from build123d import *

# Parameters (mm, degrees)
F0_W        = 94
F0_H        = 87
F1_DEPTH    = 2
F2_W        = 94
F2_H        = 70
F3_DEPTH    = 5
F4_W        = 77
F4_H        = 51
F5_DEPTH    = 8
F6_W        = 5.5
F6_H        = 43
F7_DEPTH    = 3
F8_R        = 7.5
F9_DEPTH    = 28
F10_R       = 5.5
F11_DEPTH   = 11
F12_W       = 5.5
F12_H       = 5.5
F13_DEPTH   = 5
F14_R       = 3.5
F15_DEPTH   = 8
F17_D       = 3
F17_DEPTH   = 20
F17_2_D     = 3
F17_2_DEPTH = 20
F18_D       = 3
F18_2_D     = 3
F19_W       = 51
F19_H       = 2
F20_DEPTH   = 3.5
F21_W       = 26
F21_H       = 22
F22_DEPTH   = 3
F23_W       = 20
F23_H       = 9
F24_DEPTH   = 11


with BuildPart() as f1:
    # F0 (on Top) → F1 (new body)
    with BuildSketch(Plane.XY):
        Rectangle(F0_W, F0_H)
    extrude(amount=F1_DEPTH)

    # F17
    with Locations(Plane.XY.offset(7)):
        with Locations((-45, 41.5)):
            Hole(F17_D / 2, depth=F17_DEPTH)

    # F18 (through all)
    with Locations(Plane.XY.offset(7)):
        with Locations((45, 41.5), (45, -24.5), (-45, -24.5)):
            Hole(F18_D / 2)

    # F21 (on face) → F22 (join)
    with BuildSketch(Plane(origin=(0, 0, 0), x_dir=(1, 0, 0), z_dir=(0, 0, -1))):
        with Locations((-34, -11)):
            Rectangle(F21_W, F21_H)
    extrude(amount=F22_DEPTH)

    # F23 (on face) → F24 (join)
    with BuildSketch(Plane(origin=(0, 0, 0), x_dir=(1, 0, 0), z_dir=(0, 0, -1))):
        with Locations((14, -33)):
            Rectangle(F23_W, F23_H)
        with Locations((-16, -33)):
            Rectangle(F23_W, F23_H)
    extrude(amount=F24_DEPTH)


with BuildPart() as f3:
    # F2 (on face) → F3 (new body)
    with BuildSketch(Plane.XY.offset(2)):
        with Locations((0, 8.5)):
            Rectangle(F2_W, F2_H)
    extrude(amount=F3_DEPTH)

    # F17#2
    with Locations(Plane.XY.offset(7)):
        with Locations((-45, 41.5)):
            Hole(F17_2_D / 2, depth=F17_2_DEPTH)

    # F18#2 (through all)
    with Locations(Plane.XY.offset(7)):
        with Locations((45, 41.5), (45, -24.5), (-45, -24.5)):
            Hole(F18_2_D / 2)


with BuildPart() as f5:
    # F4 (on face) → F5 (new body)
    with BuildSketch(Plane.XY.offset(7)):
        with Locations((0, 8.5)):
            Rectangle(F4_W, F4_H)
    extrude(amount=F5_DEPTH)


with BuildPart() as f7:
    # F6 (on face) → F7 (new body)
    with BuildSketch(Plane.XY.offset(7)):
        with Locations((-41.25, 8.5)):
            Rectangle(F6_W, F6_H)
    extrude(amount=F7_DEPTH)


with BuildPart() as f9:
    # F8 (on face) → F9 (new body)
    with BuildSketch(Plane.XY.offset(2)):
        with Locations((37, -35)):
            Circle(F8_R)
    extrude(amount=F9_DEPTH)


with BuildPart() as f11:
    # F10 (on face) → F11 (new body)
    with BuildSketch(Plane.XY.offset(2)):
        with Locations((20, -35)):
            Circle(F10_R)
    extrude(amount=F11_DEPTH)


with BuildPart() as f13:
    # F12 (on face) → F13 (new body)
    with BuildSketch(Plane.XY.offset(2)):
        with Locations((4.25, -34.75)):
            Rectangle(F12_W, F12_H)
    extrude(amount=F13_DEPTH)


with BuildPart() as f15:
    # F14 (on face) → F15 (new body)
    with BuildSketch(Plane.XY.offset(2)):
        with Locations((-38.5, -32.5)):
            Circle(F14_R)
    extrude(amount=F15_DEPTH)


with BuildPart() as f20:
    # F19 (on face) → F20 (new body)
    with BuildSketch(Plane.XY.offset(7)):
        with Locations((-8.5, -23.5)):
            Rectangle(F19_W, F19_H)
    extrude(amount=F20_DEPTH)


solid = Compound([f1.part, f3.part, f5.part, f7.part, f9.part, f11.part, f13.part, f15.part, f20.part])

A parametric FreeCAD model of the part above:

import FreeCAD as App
import Part
import Sketcher

V = App.Vector


def add_polygon(sketch, points):
    """Adds a closed chain of lines whose ends are joined by coincident constraints."""
    first, n = sketch.GeometryCount, len(points)
    for a, b in zip(points, points[1:] + points[:1]):
        sketch.addGeometry(Part.LineSegment(App.Vector(*a, 0), App.Vector(*b, 0)), False)
    for i in range(n):
        sketch.addConstraint(Sketcher.Constraint("Coincident", first + i, 2, first + (i + 1) % n, 1))

doc = App.newDocument("Part")
body = doc.addObject("PartDesign::Body", "Body")

# Sketch on XY plane
sketch1 = body.newObject("Sketcher::SketchObject", "Sketch")
sketch1.AttachmentSupport = (doc.getObject("XY_Plane"), [""])
sketch1.MapMode = "FlatFace"
add_polygon(sketch1, [(-47, 44), (-47, -44), (47, -44), (47, 44)])  # lines 0-3
sketch1.addConstraint(Sketcher.Constraint("Vertical", 0))
sketch1.addConstraint(Sketcher.Constraint("Horizontal", 1))
sketch1.addConstraint(Sketcher.Constraint("Vertical", 2))
sketch1.addConstraint(Sketcher.Constraint("Horizontal", 3))
sketch1.addConstraint(Sketcher.Constraint("Symmetric", 0, 2, 2, 2, -1, 1))
sketch1.addConstraint(Sketcher.Constraint("DistanceX", 1, 1, 1, 2, 94.0))
sketch1.addConstraint(Sketcher.Constraint("DistanceY", 0, 2, 0, 1, 87.0))
pad1 = body.newObject("PartDesign::Pad", "Pad")
pad1.Profile = sketch1
pad1.Length = 2

# Sketch on XY plane
sketch2 = body.newObject("Sketcher::SketchObject", "Sketch001")
sketch2.AttachmentSupport = (doc.getObject("XY_Plane"), [""])
sketch2.MapMode = "FlatFace"
sketch2.AttachmentOffset = App.Placement(V(0, 0, 7), App.Rotation())
sketch2.addGeometry(Part.Circle(V(-45, 41.5, 0), V(0, 0, 1), 1.5), False)
sketch2.addConstraint(Sketcher.Constraint("Diameter", 0, 3.0))
sketch2.addConstraint(Sketcher.Constraint("DistanceX", 0, 3, -1, 1, 45.0))
sketch2.addConstraint(Sketcher.Constraint("DistanceY", -1, 1, 0, 3, 41.5))
doc.recompute()
hole = body.newObject("PartDesign::Hole", "Hole")
hole.Profile = sketch2
hole.ThreadType = "None"
hole.Diameter = 3
hole.DepthType = "Dimension"
hole.Depth = 20
hole.DrillPoint = "Flat"

# Sketch on XY plane
sketch3 = body.newObject("Sketcher::SketchObject", "Sketch002")
sketch3.AttachmentSupport = (doc.getObject("XY_Plane"), [""])
sketch3.MapMode = "FlatFace"
sketch3.AttachmentOffset = App.Placement(V(0, 0, 7), App.Rotation())
sketch3.addGeometry(Part.Circle(V(45, 41.5, 0), V(0, 0, 1), 1.5), False)
sketch3.addGeometry(Part.Circle(V(45, -24.5, 0), V(0, 0, 1), 1.5), False)
sketch3.addGeometry(Part.Circle(V(-45, -24.5, 0), V(0, 0, 1), 1.5), False)
sketch3.addConstraint(Sketcher.Constraint("Equal", 0, 1))
sketch3.addConstraint(Sketcher.Constraint("Equal", 1, 2))
sketch3.addConstraint(Sketcher.Constraint("Symmetric", 1, 3, 2, 3, -2))
sketch3.addConstraint(Sketcher.Constraint("Vertical", 0, 3, 1, 3))
sketch3.addConstraint(Sketcher.Constraint("Diameter", 0, 3.0))
sketch3.addConstraint(Sketcher.Constraint("DistanceX", -1, 1, 0, 3, 45.0))
sketch3.addConstraint(Sketcher.Constraint("DistanceY", 1, 3, 0, 3, 66.0))
sketch3.addConstraint(Sketcher.Constraint("DistanceY", -1, 1, 0, 3, 41.5))
doc.recompute()
hole2 = body.newObject("PartDesign::Hole", "Hole001")
hole2.Profile = sketch3
hole2.ThreadType = "None"
hole2.Diameter = 3
hole2.DepthType = "ThroughAll"

# Sketch on XY plane
sketch4 = body.newObject("Sketcher::SketchObject", "Sketch003")
sketch4.AttachmentSupport = (doc.getObject("XY_Plane"), [""])
sketch4.MapMode = "FlatFace"
add_polygon(sketch4, [(-47, 0), (-47, 22), (-21, 22), (-21, 0)])  # lines 0-3
sketch4.addConstraint(Sketcher.Constraint("Vertical", 0))
sketch4.addConstraint(Sketcher.Constraint("Horizontal", 1))
sketch4.addConstraint(Sketcher.Constraint("Vertical", 2))
sketch4.addConstraint(Sketcher.Constraint("Horizontal", 3))
sketch4.addConstraint(Sketcher.Constraint("PointOnObject", 2, 2, -1))
sketch4.addConstraint(Sketcher.Constraint("DistanceX", 1, 1, 1, 2, 26.0))
sketch4.addConstraint(Sketcher.Constraint("DistanceY", 0, 1, 0, 2, 22.0))
sketch4.addConstraint(Sketcher.Constraint("DistanceX", 0, 2, -1, 1, 47.0))
pad2 = body.newObject("PartDesign::Pad", "Pad001")
pad2.Profile = sketch4
pad2.Length = 3
pad2.Reversed = True

# Sketch on XY plane
sketch5 = body.newObject("Sketcher::SketchObject", "Sketch004")
sketch5.AttachmentSupport = (doc.getObject("XY_Plane"), [""])
sketch5.MapMode = "FlatFace"
add_polygon(sketch5, [(4, 28), (4, 38), (24, 38), (24, 28)])  # lines 0-3
add_polygon(sketch5, [(-26, 28), (-26, 38), (-6, 38), (-6, 28)])  # lines 4-7
sketch5.addConstraint(Sketcher.Constraint("Vertical", 0))
sketch5.addConstraint(Sketcher.Constraint("Horizontal", 1))
sketch5.addConstraint(Sketcher.Constraint("Vertical", 2))
sketch5.addConstraint(Sketcher.Constraint("Horizontal", 3))
sketch5.addConstraint(Sketcher.Constraint("Vertical", 4))
sketch5.addConstraint(Sketcher.Constraint("Horizontal", 5))
sketch5.addConstraint(Sketcher.Constraint("Vertical", 6))
sketch5.addConstraint(Sketcher.Constraint("Horizontal", 7))
sketch5.addConstraint(Sketcher.Constraint("Horizontal", 1, 2, 4, 2))
sketch5.addConstraint(Sketcher.Constraint("Horizontal", 3, 2, 6, 2))
sketch5.addConstraint(Sketcher.Constraint("Equal", 3, 5))
sketch5.addConstraint(Sketcher.Constraint("DistanceX", 1, 1, 1, 2, 20.0))
sketch5.addConstraint(Sketcher.Constraint("DistanceY", 0, 1, 0, 2, 9.0))
sketch5.addConstraint(Sketcher.Constraint("DistanceX", -1, 1, 0, 2, 4.0))
sketch5.addConstraint(Sketcher.Constraint("DistanceX", 4, 2, -1, 1, 26.0))
sketch5.addConstraint(Sketcher.Constraint("DistanceY", -1, 1, 0, 2, 37.5))
pad3 = body.newObject("PartDesign::Pad", "Pad002")
pad3.Profile = sketch5
pad3.Length = 11
pad3.Reversed = True
body2 = doc.addObject("PartDesign::Body", "Body001")

# Sketch on XY plane
sketch6 = body2.newObject("Sketcher::SketchObject", "Sketch005")
sketch6.AttachmentSupport = (doc.getObject("XY_Plane001"), [""])
sketch6.MapMode = "FlatFace"
sketch6.AttachmentOffset = App.Placement(V(0, 0, 2), App.Rotation())
add_polygon(sketch6, [(-47, 44), (-47, -26), (47, -26), (47, 44)])  # lines 0-3
sketch6.addConstraint(Sketcher.Constraint("Vertical", 0))
sketch6.addConstraint(Sketcher.Constraint("Horizontal", 1))
sketch6.addConstraint(Sketcher.Constraint("Vertical", 2))
sketch6.addConstraint(Sketcher.Constraint("Horizontal", 3))
sketch6.addConstraint(Sketcher.Constraint("DistanceX", 1, 1, 1, 2, 94.0))
sketch6.addConstraint(Sketcher.Constraint("DistanceY", 0, 2, 0, 1, 70.0))
sketch6.addConstraint(Sketcher.Constraint("DistanceX", 0, 2, -1, 1, 47.0))
sketch6.addConstraint(Sketcher.Constraint("DistanceY", 0, 2, -1, 1, 26.5))
pad4 = body2.newObject("PartDesign::Pad", "Pad003")
pad4.Profile = sketch6
pad4.Length = 5

# Sketch on XY plane
sketch7 = body2.newObject("Sketcher::SketchObject", "Sketch006")
sketch7.AttachmentSupport = (doc.getObject("XY_Plane001"), [""])
sketch7.MapMode = "FlatFace"
sketch7.AttachmentOffset = App.Placement(V(0, 0, 7), App.Rotation())
sketch7.addGeometry(Part.Circle(V(-45, 41.5, 0), V(0, 0, 1), 1.5), False)
sketch7.addConstraint(Sketcher.Constraint("Diameter", 0, 3.0))
sketch7.addConstraint(Sketcher.Constraint("DistanceX", 0, 3, -1, 1, 45.0))
sketch7.addConstraint(Sketcher.Constraint("DistanceY", -1, 1, 0, 3, 41.5))
doc.recompute()
hole3 = body2.newObject("PartDesign::Hole", "Hole002")
hole3.Profile = sketch7
hole3.ThreadType = "None"
hole3.Diameter = 3
hole3.DepthType = "Dimension"
hole3.Depth = 20
hole3.DrillPoint = "Flat"

# Sketch on XY plane
sketch8 = body2.newObject("Sketcher::SketchObject", "Sketch007")
sketch8.AttachmentSupport = (doc.getObject("XY_Plane001"), [""])
sketch8.MapMode = "FlatFace"
sketch8.AttachmentOffset = App.Placement(V(0, 0, 7), App.Rotation())
sketch8.addGeometry(Part.Circle(V(45, 41.5, 0), V(0, 0, 1), 1.5), False)
sketch8.addGeometry(Part.Circle(V(45, -24.5, 0), V(0, 0, 1), 1.5), False)
sketch8.addGeometry(Part.Circle(V(-45, -24.5, 0), V(0, 0, 1), 1.5), False)
sketch8.addConstraint(Sketcher.Constraint("Equal", 0, 1))
sketch8.addConstraint(Sketcher.Constraint("Equal", 1, 2))
sketch8.addConstraint(Sketcher.Constraint("Symmetric", 1, 3, 2, 3, -2))
sketch8.addConstraint(Sketcher.Constraint("Vertical", 0, 3, 1, 3))
sketch8.addConstraint(Sketcher.Constraint("Diameter", 0, 3.0))
sketch8.addConstraint(Sketcher.Constraint("DistanceX", -1, 1, 0, 3, 45.0))
sketch8.addConstraint(Sketcher.Constraint("DistanceY", 1, 3, 0, 3, 66.0))
sketch8.addConstraint(Sketcher.Constraint("DistanceY", -1, 1, 0, 3, 41.5))
doc.recompute()
hole4 = body2.newObject("PartDesign::Hole", "Hole003")
hole4.Profile = sketch8
hole4.ThreadType = "None"
hole4.Diameter = 3
hole4.DepthType = "ThroughAll"
body3 = doc.addObject("PartDesign::Body", "Body002")

# Sketch on XY plane
sketch9 = body3.newObject("Sketcher::SketchObject", "Sketch008")
sketch9.AttachmentSupport = (doc.getObject("XY_Plane002"), [""])
sketch9.MapMode = "FlatFace"
sketch9.AttachmentOffset = App.Placement(V(0, 0, 7), App.Rotation())
add_polygon(sketch9, [(-38, 34), (-38, -17), (38, -17), (38, 34)])  # lines 0-3
sketch9.addConstraint(Sketcher.Constraint("Vertical", 0))
sketch9.addConstraint(Sketcher.Constraint("Horizontal", 1))
sketch9.addConstraint(Sketcher.Constraint("Vertical", 2))
sketch9.addConstraint(Sketcher.Constraint("Horizontal", 3))
sketch9.addConstraint(Sketcher.Constraint("DistanceX", 1, 1, 1, 2, 77.0))
sketch9.addConstraint(Sketcher.Constraint("DistanceY", 0, 2, 0, 1, 51.0))
sketch9.addConstraint(Sketcher.Constraint("DistanceY", 0, 2, -1, 1, 17.0))
sketch9.addConstraint(Sketcher.Constraint("DistanceX", 0, 2, -1, 1, 38.5))
pad5 = body3.newObject("PartDesign::Pad", "Pad004")
pad5.Profile = sketch9
pad5.Length = 8
body4 = doc.addObject("PartDesign::Body", "Body003")

# Sketch on XY plane
sketch10 = body4.newObject("Sketcher::SketchObject", "Sketch009")
sketch10.AttachmentSupport = (doc.getObject("XY_Plane003"), [""])
sketch10.MapMode = "FlatFace"
sketch10.AttachmentOffset = App.Placement(V(0, 0, 7), App.Rotation())
add_polygon(sketch10, [(-44, 30), (-44, -13), (-38, -13), (-38, 30)])  # lines 0-3
sketch10.addConstraint(Sketcher.Constraint("Vertical", 0))
sketch10.addConstraint(Sketcher.Constraint("Horizontal", 1))
sketch10.addConstraint(Sketcher.Constraint("Vertical", 2))
sketch10.addConstraint(Sketcher.Constraint("Horizontal", 3))
sketch10.addConstraint(Sketcher.Constraint("DistanceY", 0, 2, 0, 1, 43.0))
sketch10.addConstraint(Sketcher.Constraint("DistanceX", 1, 1, 1, 2, 5.5))
sketch10.addConstraint(Sketcher.Constraint("DistanceX", 0, 2, -1, 1, 44.0))
sketch10.addConstraint(Sketcher.Constraint("DistanceY", 0, 2, -1, 1, 13.0))
pad6 = body4.newObject("PartDesign::Pad", "Pad005")
pad6.Profile = sketch10
pad6.Length = 3
body5 = doc.addObject("PartDesign::Body", "Body004")

# Sketch on XY plane
sketch11 = body5.newObject("Sketcher::SketchObject", "Sketch010")
sketch11.AttachmentSupport = (doc.getObject("XY_Plane004"), [""])
sketch11.MapMode = "FlatFace"
sketch11.AttachmentOffset = App.Placement(V(0, 0, 2), App.Rotation())
sketch11.addGeometry(Part.Circle(V(37, -35, 0), V(0, 0, 1), 8), False)
sketch11.addConstraint(Sketcher.Constraint("Diameter", 0, 15.0))
sketch11.addConstraint(Sketcher.Constraint("DistanceX", -1, 1, 0, 3, 37.0))
sketch11.addConstraint(Sketcher.Constraint("DistanceY", 0, 3, -1, 1, 35.0))
pad7 = body5.newObject("PartDesign::Pad", "Pad006")
pad7.Profile = sketch11
pad7.Length = 28
body6 = doc.addObject("PartDesign::Body", "Body005")

# Sketch on XY plane
sketch12 = body6.newObject("Sketcher::SketchObject", "Sketch011")
sketch12.AttachmentSupport = (doc.getObject("XY_Plane005"), [""])
sketch12.MapMode = "FlatFace"
sketch12.AttachmentOffset = App.Placement(V(0, 0, 2), App.Rotation())
sketch12.addGeometry(Part.Circle(V(20, -35, 0), V(0, 0, 1), 6), False)
sketch12.addConstraint(Sketcher.Constraint("Diameter", 0, 11.0))
sketch12.addConstraint(Sketcher.Constraint("DistanceX", -1, 1, 0, 3, 20.0))
sketch12.addConstraint(Sketcher.Constraint("DistanceY", 0, 3, -1, 1, 35.0))
pad8 = body6.newObject("PartDesign::Pad", "Pad007")
pad8.Profile = sketch12
pad8.Length = 11
body7 = doc.addObject("PartDesign::Body", "Body006")

# Sketch on XY plane
sketch13 = body7.newObject("Sketcher::SketchObject", "Sketch012")
sketch13.AttachmentSupport = (doc.getObject("XY_Plane006"), [""])
sketch13.MapMode = "FlatFace"
sketch13.AttachmentOffset = App.Placement(V(0, 0, 2), App.Rotation())
add_polygon(sketch13, [(2, -32), (2, -38), (7, -38), (7, -32)])  # lines 0-3
sketch13.addConstraint(Sketcher.Constraint("Vertical", 0))
sketch13.addConstraint(Sketcher.Constraint("Horizontal", 1))
sketch13.addConstraint(Sketcher.Constraint("Vertical", 2))
sketch13.addConstraint(Sketcher.Constraint("Horizontal", 3))
sketch13.addConstraint(Sketcher.Constraint("Equal", 3, 0))
sketch13.addConstraint(Sketcher.Constraint("DistanceX", 1, 1, 1, 2, 5.5))
sketch13.addConstraint(Sketcher.Constraint("DistanceX", -1, 1, 1, 2, 7.0))
sketch13.addConstraint(Sketcher.Constraint("DistanceY", 2, 2, -1, 1, 32.0))
pad9 = body7.newObject("PartDesign::Pad", "Pad008")
pad9.Profile = sketch13
pad9.Length = 5
body8 = doc.addObject("PartDesign::Body", "Body007")

# Sketch on XY plane
sketch14 = body8.newObject("Sketcher::SketchObject", "Sketch013")
sketch14.AttachmentSupport = (doc.getObject("XY_Plane007"), [""])
sketch14.MapMode = "FlatFace"
sketch14.AttachmentOffset = App.Placement(V(0, 0, 2), App.Rotation())
sketch14.addGeometry(Part.Circle(V(-38.5, -32.5, 0), V(0, 0, 1), 3.5), False)
sketch14.addConstraint(Sketcher.Constraint("Diameter", 0, 7.0))
sketch14.addConstraint(Sketcher.Constraint("DistanceX", 0, 3, -1, 1, 38.5))
sketch14.addConstraint(Sketcher.Constraint("DistanceY", 0, 3, -1, 1, 32.5))
pad10 = body8.newObject("PartDesign::Pad", "Pad009")
pad10.Profile = sketch14
pad10.Length = 8
body9 = doc.addObject("PartDesign::Body", "Body008")

# Sketch on XY plane
sketch15 = body9.newObject("Sketcher::SketchObject", "Sketch014")
sketch15.AttachmentSupport = (doc.getObject("XY_Plane008"), [""])
sketch15.MapMode = "FlatFace"
sketch15.AttachmentOffset = App.Placement(V(0, 0, 7), App.Rotation())
add_polygon(sketch15, [(-34, -22.5), (-34, -24.5), (17, -24.5), (17, -22.5)])  # lines 0-3
sketch15.addConstraint(Sketcher.Constraint("Vertical", 0))
sketch15.addConstraint(Sketcher.Constraint("Horizontal", 1))
sketch15.addConstraint(Sketcher.Constraint("Vertical", 2))
sketch15.addConstraint(Sketcher.Constraint("Horizontal", 3))
sketch15.addConstraint(Sketcher.Constraint("DistanceX", 1, 1, 1, 2, 51.0))
sketch15.addConstraint(Sketcher.Constraint("DistanceY", 0, 2, 0, 1, 2.0))
sketch15.addConstraint(Sketcher.Constraint("DistanceX", 0, 2, -1, 1, 34.0))
sketch15.addConstraint(Sketcher.Constraint("DistanceY", 0, 2, -1, 1, 24.5))
pad11 = body9.newObject("PartDesign::Pad", "Pad010")
pad11.Profile = sketch15
pad11.Length = 3.5

doc.recompute()
